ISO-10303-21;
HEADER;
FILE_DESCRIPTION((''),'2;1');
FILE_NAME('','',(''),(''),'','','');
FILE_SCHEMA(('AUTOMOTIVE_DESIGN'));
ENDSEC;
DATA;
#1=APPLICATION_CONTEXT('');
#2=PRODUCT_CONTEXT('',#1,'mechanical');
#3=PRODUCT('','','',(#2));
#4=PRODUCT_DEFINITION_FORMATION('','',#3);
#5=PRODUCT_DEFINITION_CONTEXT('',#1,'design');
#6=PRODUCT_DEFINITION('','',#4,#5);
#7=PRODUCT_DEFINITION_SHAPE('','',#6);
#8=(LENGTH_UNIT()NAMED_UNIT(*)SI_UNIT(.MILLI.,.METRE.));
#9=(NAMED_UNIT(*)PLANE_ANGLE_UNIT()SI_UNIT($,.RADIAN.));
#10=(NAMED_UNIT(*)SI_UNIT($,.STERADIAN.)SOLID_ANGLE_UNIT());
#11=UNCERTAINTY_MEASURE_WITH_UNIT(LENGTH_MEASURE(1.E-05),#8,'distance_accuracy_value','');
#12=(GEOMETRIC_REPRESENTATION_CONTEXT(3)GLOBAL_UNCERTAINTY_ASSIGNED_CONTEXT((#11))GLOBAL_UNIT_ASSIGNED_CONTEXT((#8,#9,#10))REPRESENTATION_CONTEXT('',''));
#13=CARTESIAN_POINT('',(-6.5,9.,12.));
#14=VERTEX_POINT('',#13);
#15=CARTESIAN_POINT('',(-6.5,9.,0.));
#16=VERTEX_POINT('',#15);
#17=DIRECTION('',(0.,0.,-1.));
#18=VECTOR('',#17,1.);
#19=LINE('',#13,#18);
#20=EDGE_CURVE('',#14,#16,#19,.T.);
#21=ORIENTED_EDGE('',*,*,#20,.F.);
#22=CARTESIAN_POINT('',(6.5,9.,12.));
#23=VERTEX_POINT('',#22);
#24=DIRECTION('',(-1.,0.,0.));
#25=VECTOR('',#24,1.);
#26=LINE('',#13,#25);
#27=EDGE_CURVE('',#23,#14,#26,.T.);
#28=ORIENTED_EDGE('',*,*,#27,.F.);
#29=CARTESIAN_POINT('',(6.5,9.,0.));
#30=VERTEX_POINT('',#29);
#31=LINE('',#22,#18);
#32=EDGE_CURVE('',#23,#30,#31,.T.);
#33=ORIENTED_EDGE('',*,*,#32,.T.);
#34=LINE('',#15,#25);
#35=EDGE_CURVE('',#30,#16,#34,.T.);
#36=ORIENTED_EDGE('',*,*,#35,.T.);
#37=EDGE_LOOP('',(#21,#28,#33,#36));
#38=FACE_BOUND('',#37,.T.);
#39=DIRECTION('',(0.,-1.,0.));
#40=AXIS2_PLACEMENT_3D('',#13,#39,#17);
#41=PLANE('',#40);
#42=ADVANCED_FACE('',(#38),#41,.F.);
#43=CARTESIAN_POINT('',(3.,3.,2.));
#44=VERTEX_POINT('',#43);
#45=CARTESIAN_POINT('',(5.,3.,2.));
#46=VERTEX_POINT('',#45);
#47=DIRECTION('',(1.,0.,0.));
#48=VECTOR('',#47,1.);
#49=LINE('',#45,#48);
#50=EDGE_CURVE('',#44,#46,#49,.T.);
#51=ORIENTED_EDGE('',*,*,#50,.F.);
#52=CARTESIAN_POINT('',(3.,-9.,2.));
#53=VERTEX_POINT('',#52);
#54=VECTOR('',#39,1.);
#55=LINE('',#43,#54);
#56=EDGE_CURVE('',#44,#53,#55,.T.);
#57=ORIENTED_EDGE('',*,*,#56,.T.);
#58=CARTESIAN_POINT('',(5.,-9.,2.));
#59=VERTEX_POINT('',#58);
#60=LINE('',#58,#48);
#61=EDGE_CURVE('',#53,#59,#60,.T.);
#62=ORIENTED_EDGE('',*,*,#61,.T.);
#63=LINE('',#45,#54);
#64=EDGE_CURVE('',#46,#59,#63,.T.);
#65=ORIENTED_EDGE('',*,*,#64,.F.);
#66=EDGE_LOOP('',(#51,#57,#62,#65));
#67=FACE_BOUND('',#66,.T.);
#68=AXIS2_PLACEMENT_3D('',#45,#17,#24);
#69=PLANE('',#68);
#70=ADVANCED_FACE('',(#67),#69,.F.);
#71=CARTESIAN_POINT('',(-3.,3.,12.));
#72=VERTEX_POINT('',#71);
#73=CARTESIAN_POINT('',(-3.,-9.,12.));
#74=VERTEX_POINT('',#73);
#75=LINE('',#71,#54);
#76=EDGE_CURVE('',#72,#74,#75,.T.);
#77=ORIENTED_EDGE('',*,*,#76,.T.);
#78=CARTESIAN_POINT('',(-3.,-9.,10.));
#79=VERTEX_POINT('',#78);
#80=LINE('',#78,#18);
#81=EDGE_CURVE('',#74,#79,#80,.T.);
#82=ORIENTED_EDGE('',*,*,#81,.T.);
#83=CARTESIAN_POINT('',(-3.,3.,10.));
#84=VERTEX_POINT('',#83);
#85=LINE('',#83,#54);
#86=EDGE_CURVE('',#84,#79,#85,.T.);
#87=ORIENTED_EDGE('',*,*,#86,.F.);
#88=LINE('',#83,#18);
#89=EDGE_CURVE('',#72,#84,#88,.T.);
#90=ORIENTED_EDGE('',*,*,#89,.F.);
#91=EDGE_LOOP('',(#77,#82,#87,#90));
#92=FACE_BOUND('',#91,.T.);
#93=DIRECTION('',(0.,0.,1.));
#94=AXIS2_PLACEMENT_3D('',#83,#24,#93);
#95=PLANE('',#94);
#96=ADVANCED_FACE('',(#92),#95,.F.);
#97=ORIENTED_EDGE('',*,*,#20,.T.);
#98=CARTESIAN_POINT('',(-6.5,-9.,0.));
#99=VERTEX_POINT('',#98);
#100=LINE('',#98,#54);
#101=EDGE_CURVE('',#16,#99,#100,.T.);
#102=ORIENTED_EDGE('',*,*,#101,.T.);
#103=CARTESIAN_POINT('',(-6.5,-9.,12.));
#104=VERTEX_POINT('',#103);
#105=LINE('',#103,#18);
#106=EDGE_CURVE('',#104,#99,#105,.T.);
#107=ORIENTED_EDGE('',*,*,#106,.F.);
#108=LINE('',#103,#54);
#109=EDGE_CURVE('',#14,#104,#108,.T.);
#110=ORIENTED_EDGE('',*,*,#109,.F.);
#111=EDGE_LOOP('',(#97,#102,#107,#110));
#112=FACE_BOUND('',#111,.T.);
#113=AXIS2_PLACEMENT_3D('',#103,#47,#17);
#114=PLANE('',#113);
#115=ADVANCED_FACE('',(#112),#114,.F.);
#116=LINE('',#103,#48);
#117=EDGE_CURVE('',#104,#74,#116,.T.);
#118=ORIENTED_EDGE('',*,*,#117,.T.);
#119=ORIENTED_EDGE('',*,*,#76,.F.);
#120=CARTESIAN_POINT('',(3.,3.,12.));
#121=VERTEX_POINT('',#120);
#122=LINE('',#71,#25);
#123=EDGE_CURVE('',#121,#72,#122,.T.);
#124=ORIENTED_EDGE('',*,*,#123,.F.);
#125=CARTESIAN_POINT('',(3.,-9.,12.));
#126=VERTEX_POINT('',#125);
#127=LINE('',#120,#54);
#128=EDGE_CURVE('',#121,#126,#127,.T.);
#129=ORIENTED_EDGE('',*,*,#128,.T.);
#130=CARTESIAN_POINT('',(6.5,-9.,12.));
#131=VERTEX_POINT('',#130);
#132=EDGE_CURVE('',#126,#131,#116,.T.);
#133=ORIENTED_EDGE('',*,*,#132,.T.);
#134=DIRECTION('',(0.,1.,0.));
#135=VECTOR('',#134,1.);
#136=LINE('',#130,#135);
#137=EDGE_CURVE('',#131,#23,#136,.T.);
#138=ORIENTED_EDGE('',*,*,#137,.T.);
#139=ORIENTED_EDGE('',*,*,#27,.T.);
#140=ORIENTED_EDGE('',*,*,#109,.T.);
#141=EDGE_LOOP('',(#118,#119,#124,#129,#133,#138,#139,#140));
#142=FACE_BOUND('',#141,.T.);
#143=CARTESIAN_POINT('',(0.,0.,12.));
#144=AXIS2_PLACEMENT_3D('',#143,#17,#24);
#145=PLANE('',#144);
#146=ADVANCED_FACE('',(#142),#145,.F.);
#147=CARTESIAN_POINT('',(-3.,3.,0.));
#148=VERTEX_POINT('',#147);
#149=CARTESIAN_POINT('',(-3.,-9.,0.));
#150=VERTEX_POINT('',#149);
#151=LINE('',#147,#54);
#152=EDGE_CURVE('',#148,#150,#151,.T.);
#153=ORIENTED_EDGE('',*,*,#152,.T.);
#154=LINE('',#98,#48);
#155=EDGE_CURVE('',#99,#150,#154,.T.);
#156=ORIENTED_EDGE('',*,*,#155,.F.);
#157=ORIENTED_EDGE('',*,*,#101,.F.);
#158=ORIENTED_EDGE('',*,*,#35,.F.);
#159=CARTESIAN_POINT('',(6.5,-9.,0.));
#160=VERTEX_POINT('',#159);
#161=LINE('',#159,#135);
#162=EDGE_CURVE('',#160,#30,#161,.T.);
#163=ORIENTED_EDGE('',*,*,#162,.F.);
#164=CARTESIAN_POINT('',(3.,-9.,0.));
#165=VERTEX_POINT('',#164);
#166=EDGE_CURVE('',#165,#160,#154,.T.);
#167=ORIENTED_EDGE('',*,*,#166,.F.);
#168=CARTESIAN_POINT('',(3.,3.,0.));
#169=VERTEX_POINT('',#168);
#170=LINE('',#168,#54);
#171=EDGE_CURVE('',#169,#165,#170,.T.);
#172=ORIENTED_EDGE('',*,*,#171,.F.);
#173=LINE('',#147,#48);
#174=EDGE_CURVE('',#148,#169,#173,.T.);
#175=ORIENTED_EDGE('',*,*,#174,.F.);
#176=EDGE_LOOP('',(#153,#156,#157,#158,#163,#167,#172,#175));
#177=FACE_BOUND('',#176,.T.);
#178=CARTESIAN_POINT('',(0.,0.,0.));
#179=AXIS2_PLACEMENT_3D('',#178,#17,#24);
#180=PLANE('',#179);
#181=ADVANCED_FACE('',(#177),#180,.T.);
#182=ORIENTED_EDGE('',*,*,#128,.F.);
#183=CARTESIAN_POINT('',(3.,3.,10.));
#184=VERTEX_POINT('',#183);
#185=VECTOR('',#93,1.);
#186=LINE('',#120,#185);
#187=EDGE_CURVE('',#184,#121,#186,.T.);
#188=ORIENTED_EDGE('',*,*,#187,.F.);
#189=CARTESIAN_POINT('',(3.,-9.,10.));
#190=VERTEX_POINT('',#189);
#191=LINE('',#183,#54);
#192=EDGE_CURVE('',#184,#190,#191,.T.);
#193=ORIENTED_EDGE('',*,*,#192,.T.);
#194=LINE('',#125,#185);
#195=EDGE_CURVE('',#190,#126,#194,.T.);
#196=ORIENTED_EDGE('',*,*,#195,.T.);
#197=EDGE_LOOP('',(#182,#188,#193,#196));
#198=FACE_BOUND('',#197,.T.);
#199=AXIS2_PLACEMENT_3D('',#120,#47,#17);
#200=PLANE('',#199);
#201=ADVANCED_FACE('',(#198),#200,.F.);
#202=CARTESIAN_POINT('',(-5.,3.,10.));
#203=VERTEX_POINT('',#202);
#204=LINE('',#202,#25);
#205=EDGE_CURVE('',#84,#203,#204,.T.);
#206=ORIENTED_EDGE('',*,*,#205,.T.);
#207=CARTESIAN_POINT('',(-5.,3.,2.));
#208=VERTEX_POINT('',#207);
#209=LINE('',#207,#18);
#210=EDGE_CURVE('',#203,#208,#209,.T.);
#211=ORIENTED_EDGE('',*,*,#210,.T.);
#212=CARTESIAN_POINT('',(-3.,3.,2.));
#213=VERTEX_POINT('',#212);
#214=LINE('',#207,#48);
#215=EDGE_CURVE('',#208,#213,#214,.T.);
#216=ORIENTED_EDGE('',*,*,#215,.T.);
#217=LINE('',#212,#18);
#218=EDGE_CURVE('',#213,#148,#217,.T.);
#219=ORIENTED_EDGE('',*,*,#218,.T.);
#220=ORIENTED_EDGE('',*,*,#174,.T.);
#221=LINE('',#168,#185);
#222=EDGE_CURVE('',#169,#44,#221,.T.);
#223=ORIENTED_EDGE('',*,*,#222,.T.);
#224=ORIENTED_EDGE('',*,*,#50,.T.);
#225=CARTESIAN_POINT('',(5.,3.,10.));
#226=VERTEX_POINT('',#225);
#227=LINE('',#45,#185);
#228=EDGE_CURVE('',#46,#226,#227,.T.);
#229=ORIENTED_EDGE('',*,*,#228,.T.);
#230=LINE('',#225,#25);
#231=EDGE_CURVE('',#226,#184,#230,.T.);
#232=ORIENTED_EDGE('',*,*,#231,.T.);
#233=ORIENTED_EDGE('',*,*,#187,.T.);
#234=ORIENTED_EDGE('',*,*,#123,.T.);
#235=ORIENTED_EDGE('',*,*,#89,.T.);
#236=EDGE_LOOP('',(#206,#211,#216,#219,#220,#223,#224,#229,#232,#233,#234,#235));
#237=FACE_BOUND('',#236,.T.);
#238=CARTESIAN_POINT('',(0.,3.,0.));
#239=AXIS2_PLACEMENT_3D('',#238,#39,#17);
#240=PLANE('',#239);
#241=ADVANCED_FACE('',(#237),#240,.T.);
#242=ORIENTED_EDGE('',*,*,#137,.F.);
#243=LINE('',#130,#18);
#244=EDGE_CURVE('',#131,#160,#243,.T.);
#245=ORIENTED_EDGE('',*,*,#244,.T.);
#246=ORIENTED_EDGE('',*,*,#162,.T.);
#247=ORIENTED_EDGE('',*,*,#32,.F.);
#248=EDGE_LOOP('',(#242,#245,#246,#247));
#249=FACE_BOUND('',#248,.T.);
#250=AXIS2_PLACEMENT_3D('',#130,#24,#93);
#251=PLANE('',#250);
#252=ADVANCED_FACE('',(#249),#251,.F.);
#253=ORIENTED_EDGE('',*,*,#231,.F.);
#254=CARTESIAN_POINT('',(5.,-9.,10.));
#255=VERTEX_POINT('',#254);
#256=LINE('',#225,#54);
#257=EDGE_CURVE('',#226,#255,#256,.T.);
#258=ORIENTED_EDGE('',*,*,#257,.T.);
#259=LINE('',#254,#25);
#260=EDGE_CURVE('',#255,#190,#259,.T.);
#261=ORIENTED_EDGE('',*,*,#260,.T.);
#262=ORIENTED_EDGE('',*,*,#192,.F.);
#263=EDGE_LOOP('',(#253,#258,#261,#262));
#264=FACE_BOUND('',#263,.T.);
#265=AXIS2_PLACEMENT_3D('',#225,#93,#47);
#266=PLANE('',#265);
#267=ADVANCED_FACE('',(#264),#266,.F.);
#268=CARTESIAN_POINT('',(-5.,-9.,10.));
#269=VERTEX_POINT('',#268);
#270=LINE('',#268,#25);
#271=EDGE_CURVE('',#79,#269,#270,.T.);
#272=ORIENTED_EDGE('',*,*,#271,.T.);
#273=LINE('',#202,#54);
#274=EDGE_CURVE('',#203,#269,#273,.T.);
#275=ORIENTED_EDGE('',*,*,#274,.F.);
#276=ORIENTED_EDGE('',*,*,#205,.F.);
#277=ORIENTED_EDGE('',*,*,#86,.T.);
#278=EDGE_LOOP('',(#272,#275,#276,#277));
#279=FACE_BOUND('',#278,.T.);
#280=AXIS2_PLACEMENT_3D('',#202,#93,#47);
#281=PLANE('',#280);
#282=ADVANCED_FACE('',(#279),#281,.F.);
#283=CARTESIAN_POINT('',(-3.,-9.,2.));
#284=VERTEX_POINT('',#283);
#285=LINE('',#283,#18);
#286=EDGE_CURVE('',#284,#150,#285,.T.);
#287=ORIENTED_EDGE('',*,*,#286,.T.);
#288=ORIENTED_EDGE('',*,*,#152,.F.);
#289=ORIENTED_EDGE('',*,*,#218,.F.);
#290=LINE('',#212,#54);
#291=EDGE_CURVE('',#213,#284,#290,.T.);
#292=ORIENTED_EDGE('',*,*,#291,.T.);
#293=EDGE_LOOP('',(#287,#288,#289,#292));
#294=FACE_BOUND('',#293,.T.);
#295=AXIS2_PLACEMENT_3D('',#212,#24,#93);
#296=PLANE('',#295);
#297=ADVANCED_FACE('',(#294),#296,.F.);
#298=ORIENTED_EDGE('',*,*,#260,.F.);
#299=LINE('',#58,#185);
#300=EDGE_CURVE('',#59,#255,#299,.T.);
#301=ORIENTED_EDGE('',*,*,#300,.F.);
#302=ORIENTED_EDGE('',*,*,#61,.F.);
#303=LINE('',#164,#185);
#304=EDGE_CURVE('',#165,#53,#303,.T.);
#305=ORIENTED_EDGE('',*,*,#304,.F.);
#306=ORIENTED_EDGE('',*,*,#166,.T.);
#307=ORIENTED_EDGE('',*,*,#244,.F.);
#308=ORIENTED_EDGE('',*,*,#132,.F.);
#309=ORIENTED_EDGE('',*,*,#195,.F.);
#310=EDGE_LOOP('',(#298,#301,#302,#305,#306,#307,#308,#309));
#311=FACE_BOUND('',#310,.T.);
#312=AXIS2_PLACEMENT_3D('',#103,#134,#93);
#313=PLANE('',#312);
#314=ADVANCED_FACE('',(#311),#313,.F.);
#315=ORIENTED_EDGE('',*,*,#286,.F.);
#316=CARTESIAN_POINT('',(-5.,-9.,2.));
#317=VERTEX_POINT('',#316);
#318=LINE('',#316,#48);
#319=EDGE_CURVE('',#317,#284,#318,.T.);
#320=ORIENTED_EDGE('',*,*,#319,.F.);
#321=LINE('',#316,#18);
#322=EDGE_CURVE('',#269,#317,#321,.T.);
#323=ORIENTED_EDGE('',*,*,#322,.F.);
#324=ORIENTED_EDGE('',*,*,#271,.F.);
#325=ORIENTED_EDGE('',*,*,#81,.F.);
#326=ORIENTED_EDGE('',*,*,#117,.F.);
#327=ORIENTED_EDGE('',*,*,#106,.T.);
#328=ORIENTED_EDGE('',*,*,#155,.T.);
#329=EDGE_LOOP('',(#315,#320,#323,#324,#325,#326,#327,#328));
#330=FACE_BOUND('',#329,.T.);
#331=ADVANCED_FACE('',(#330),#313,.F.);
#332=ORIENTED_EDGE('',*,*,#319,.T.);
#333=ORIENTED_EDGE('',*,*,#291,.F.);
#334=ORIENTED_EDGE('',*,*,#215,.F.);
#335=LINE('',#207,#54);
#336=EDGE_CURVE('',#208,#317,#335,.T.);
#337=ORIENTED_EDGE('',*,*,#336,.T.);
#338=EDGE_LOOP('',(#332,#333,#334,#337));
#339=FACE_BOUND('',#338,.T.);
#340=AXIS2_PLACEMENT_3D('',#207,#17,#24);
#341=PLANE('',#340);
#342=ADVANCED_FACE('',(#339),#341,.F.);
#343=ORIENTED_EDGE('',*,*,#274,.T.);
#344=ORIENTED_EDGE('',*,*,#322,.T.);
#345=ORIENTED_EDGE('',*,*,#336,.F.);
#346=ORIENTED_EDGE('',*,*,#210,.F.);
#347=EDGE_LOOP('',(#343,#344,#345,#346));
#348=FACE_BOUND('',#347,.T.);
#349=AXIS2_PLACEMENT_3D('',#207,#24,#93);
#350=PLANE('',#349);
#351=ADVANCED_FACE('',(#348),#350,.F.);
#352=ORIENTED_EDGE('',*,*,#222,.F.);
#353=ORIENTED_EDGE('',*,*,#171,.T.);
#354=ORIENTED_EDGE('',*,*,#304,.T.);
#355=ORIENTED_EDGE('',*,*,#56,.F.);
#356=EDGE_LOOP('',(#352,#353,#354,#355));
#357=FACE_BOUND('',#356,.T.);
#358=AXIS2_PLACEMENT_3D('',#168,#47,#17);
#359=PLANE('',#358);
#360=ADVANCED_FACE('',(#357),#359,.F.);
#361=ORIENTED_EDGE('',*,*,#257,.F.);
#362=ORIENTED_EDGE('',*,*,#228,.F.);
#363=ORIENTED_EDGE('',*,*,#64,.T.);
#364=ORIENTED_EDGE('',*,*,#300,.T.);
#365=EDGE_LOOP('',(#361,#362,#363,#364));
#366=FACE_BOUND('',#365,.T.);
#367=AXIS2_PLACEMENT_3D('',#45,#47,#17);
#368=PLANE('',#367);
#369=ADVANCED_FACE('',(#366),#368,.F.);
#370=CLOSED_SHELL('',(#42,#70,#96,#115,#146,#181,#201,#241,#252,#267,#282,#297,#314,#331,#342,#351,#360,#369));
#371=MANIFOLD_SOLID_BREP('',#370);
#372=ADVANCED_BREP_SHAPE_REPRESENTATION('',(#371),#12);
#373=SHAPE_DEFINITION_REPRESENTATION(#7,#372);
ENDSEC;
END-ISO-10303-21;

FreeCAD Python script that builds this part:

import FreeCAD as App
import Part
import Sketcher
Q = App.Units.Quantity


def add_polygon(sketch, points):
    """Adds a closed chain of lines whose ends are joined by coincident constraints."""
    first, n = sketch.GeometryCount, len(points)
    for a, b in zip(points, points[1:] + points[:1]):
        sketch.addGeometry(Part.LineSegment(App.Vector(*a, 0), App.Vector(*b, 0)), False)
    for i in range(n):
        sketch.addConstraint(Sketcher.Constraint("Coincident", first + i, 2, first + (i + 1) % n, 1))

doc = App.newDocument("Part")
body = doc.addObject("PartDesign::Body", "Body")

# Sketch on XY plane
sketch1 = body.newObject("Sketcher::SketchObject", "Sketch")
sketch1.AttachmentSupport = (doc.getObject("XY_Plane"), [""])
sketch1.MapMode = "FlatFace"
add_polygon(sketch1, [(-6, 9), (-6, -9), (6, -9), (6, 9)])  # lines 0-3
sketch1.addConstraint(Sketcher.Constraint("Vertical", 0))
sketch1.addConstraint(Sketcher.Constraint("Horizontal", 1))
sketch1.addConstraint(Sketcher.Constraint("Vertical", 2))
sketch1.addConstraint(Sketcher.Constraint("Horizontal", 3))
sketch1.addConstraint(Sketcher.Constraint("Symmetric", 0, 2, 2, 2, -1, 1))
sketch1.addConstraint(Sketcher.Constraint("DistanceX", 1, 1, 1, 2, Q("13 mm")))
sketch1.addConstraint(Sketcher.Constraint("DistanceY", 0, 2, 0, 1, Q("18 mm")))
pad1 = body.newObject("PartDesign::Pad", "Pad")
pad1.Profile = sketch1
pad1.Length = 12

# Sketch on XZ plane
sketch2 = body.newObject("Sketcher::SketchObject", "Sketch001")
sketch2.AttachmentSupport = (doc.getObject("XZ_Plane"), [""])
sketch2.MapMode = "FlatFace"
sketch2.AttachmentOffset = App.Placement(App.Vector(0, 0, 9), App.Rotation())
add_polygon(sketch2, [(-3, 10), (-5, 10), (-5, 2), (-3, 2), (-3, 0), (3, 0), (3, 2), (5, 2), (5, 10), (3, 10), (3, 12), (-3, 12)])  # lines 0-11
sketch2.addConstraint(Sketcher.Constraint("Horizontal", 0))
sketch2.addConstraint(Sketcher.Constraint("Vertical", 1))
sketch2.addConstraint(Sketcher.Constraint("Horizontal", 2))
sketch2.addConstraint(Sketcher.Constraint("Vertical", 3))
sketch2.addConstraint(Sketcher.Constraint("Horizontal", 4))
sketch2.addConstraint(Sketcher.Constraint("Vertical", 5))
sketch2.addConstraint(Sketcher.Constraint("Horizontal", 6))
sketch2.addConstraint(Sketcher.Constraint("Vertical", 7))
sketch2.addConstraint(Sketcher.Constraint("Horizontal", 8))
sketch2.addConstraint(Sketcher.Constraint("Vertical", 9))
sketch2.addConstraint(Sketcher.Constraint("Horizontal", 10))
sketch2.addConstraint(Sketcher.Constraint("Vertical", 11))
sketch2.addConstraint(Sketcher.Constraint("Symmetric", 3, 2, 4, 2, -1, 1))
sketch2.addConstraint(Sketcher.Constraint("Symmetric", 1, 2, 6, 2, -2))
sketch2.addConstraint(Sketcher.Constraint("Symmetric", 8, 2, 11, 2, -2))
sketch2.addConstraint(Sketcher.Constraint("Vertical", 5, 2, 8, 2))
sketch2.addConstraint(Sketcher.Constraint("Equal", 8, 3))
sketch2.addConstraint(Sketcher.Constraint("Equal", 5, 9))
sketch2.addConstraint(Sketcher.Constraint("DistanceX", 0, 2, 0, 1, Q("2 mm")))
sketch2.addConstraint(Sketcher.Constraint("DistanceX", 4, 1, 4, 2, Q("6 mm")))
sketch2.addConstraint(Sketcher.Constraint("DistanceY", 1, 2, 1, 1, Q("8 mm")))
pocket1 = body.newObject("PartDesign::Pocket", "Pocket")
pocket1.Profile = sketch2
pocket1.Length = 12

doc.recompute()
